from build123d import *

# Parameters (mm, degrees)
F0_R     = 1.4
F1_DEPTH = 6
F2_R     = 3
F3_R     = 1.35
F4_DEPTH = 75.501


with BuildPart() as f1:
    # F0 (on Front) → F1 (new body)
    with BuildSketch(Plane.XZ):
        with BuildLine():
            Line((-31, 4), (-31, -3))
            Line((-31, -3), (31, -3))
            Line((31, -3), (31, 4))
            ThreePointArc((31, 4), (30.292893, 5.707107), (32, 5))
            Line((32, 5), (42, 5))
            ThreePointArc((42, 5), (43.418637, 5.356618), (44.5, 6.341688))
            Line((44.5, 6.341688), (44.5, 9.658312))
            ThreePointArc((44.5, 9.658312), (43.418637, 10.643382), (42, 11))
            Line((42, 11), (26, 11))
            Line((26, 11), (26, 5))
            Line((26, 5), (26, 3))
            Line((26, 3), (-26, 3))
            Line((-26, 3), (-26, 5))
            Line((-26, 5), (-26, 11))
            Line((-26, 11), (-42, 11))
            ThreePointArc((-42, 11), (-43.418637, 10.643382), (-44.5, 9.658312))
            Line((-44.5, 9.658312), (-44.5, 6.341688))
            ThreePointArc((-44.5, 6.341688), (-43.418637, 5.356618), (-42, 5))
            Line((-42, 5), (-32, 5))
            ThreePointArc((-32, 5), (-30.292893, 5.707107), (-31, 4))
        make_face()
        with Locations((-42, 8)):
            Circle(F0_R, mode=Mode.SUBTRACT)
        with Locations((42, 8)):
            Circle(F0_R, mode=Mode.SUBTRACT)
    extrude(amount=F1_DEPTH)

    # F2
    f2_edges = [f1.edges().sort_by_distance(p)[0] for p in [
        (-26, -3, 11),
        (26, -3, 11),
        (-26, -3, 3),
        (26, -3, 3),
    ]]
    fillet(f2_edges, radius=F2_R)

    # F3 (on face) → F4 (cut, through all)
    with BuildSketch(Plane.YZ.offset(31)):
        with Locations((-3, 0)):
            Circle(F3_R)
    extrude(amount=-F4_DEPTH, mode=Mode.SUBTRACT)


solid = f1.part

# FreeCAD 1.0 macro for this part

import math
import FreeCAD as App
import Part
import Sketcher
Q = App.Units.Quantity


def edges_at(feature, points):
    """Names of the edges that pass closest to the given points."""
    edges = feature.Shape.Edges
    near = lambda p: min(range(len(edges)), key=lambda i: edges[i].distToShape(Part.Vertex(*p))[0])
    return sorted({f"Edge{near(p) + 1}" for p in points})

doc = App.newDocument("Part")
body = doc.addObject("PartDesign::Body", "Body")

sketch1 = body.newObject("Sketcher::SketchObject", "Sketch")
sketch1.AttachmentSupport = (doc.getObject("XZ_Plane"), [""])
sketch1.MapMode = "FlatFace"
sketch1.addGeometry(Part.LineSegment(App.Vector(-31, 4, 0), App.Vector(-31, -3, 0)), False)
sketch1.addGeometry(Part.LineSegment(App.Vector(-31, -3, 0), App.Vector(31, -3, 0)), False)
sketch1.addGeometry(Part.LineSegment(App.Vector(31, -3, 0), App.Vector(31, 4, 0)), False)
sketch1.addGeometry(Part.ArcOfCircle(Part.Circle(App.Vector(31, 5, 0), App.Vector(0, 0, 1), 1), math.radians(-0.000007), math.radians(270.000007)), False)
sketch1.addGeometry(Part.LineSegment(App.Vector(32, 5, 0), App.Vector(42, 5, 0)), False)
sketch1.addGeometry(Part.ArcOfCircle(Part.Circle(App.Vector(42, 8, 0), App.Vector(0, 0, 1), 3), math.radians(-89.999996), math.radians(-33.5573)), False)
sketch1.addGeometry(Part.LineSegment(App.Vector(44.5, 6.341688, 0), App.Vector(44.5, 9.658312, 0)), False)
sketch1.addGeometry(Part.ArcOfCircle(Part.Circle(App.Vector(42, 8, 0), App.Vector(0, 0, 1), 3), math.radians(33.5573), math.radians(89.999996)), False)
sketch1.addGeometry(Part.LineSegment(App.Vector(42, 11, 0), App.Vector(26, 11, 0)), False)
sketch1.addGeometry(Part.LineSegment(App.Vector(26, 11, 0), App.Vector(26, 3, 0)), False)
sketch1.addGeometry(Part.LineSegment(App.Vector(26, 3, 0), App.Vector(-26, 3, 0)), False)
sketch1.addGeometry(Part.LineSegment(App.Vector(-26, 3, 0), App.Vector(-26, 11, 0)), False)
sketch1.addGeometry(Part.LineSegment(App.Vector(-26, 11, 0), App.Vector(-42, 11, 0)), False)
sketch1.addGeometry(Part.ArcOfCircle(Part.Circle(App.Vector(-42, 8, 0), App.Vector(0, 0, 1), 3), math.radians(90.000004), math.radians(146.4427)), False)
sketch1.addGeometry(Part.LineSegment(App.Vector(-44.5, 9.658312, 0), App.Vector(-44.5, 6.341688, 0)), False)
sketch1.addGeometry(Part.ArcOfCircle(Part.Circle(App.Vector(-42, 8, 0), App.Vector(0, 0, 1), 3), math.radians(-146.4427), math.radians(-90.000004)), False)
sketch1.addGeometry(Part.LineSegment(App.Vector(-42, 5, 0), App.Vector(-32, 5, 0)), False)
sketch1.addGeometry(Part.ArcOfCircle(Part.Circle(App.Vector(-31, 5, 0), App.Vector(0, 0, 1), 1), math.radians(-90.000007), math.radians(180.000007)), False)
sketch1.addGeometry(Part.Circle(App.Vector(-42, 8, 0), App.Vector(0, 0, 1), 1.4), False)
sketch1.addGeometry(Part.Circle(App.Vector(42, 8, 0), App.Vector(0, 0, 1), 1.4), False)
sketch1.addConstraint(Sketcher.Constraint("Coincident", 0, 2, 1, 1))
sketch1.addConstraint(Sketcher.Constraint("Coincident", 1, 2, 2, 1))
sketch1.addConstraint(Sketcher.Constraint("Coincident", 2, 2, 3, 2))
sketch1.addConstraint(Sketcher.Constraint("Coincident", 3, 1, 4, 1))
sketch1.addConstraint(Sketcher.Constraint("Tangent", 4, 2, 5, 1))
sketch1.addConstraint(Sketcher.Constraint("Coincident", 5, 2, 6, 1))
sketch1.addConstraint(Sketcher.Constraint("Coincident", 6, 2, 7, 1))
sketch1.addConstraint(Sketcher.Constraint("Tangent", 7, 2, 8, 1))
sketch1.addConstraint(Sketcher.Constraint("Coincident", 8, 2, 9, 1))
sketch1.addConstraint(Sketcher.Constraint("Coincident", 9, 2, 10, 1))
sketch1.addConstraint(Sketcher.Constraint("Coincident", 10, 2, 11, 1))
sketch1.addConstraint(Sketcher.Constraint("Coincident", 11, 2, 12, 1))
sketch1.addConstraint(Sketcher.Constraint("Tangent", 12, 2, 13, 1))
sketch1.addConstraint(Sketcher.Constraint("Coincident", 13, 2, 14, 1))
sketch1.addConstraint(Sketcher.Constraint("Coincident", 14, 2, 15, 1))
sketch1.addConstraint(Sketcher.Constraint("Tangent", 15, 2, 16, 1))
sketch1.addConstraint(Sketcher.Constraint("Coincident", 16, 2, 17, 2))
sketch1.addConstraint(Sketcher.Constraint("Coincident", 17, 1, 0, 1))
sketch1.addConstraint(Sketcher.Constraint("Vertical", 0))
sketch1.addConstraint(Sketcher.Constraint("Horizontal", 1))
sketch1.addConstraint(Sketcher.Constraint("Vertical", 2))
sketch1.addConstraint(Sketcher.Constraint("Horizontal", 4))
sketch1.addConstraint(Sketcher.Constraint("Vertical", 6))
sketch1.addConstraint(Sketcher.Constraint("Horizontal", 8))
sketch1.addConstraint(Sketcher.Constraint("Vertical", 9))
sketch1.addConstraint(Sketcher.Constraint("Horizontal", 10))
sketch1.addConstraint(Sketcher.Constraint("Vertical", 11))
sketch1.addConstraint(Sketcher.Constraint("Horizontal", 12))
sketch1.addConstraint(Sketcher.Constraint("Vertical", 14))
sketch1.addConstraint(Sketcher.Constraint("Horizontal", 16))
sketch1.addConstraint(Sketcher.Constraint("Coincident", 7, 3, 5, 3))
sketch1.addConstraint(Sketcher.Constraint("Coincident", 15, 3, 13, 3))
sketch1.addConstraint(Sketcher.Constraint("Coincident", 18, 3, 13, 3))
sketch1.addConstraint(Sketcher.Constraint("Coincident", 19, 3, 5, 3))
sketch1.addConstraint(Sketcher.Constraint("Equal", 5, 7))
sketch1.addConstraint(Sketcher.Constraint("Equal", 7, 13))
sketch1.addConstraint(Sketcher.Constraint("Equal", 13, 15))
sketch1.addConstraint(Sketcher.Constraint("Equal", 3, 17))
sketch1.addConstraint(Sketcher.Constraint("Equal", 18, 19))
sketch1.addConstraint(Sketcher.Constraint("Symmetric", 5, 3, 13, 3, -2))
sketch1.addConstraint(Sketcher.Constraint("Symmetric", 3, 3, 17, 3, -2))
sketch1.addConstraint(Sketcher.Constraint("Horizontal", 17, 3, 3, 1))
sketch1.addConstraint(Sketcher.Constraint("Horizontal", 6, 2, 13, 2))
sketch1.addConstraint(Sketcher.Constraint("Vertical", 17, 3, 0, 2))
sketch1.addConstraint(Sketcher.Constraint("Vertical", 3, 3, 1, 2))
sketch1.addConstraint(Sketcher.Constraint("Equal", 8, 12))
sketch1.addConstraint(Sketcher.Constraint("Radius", 3, Q("1 mm")))
sketch1.addConstraint(Sketcher.Constraint("Radius", 5, Q("3 mm")))
sketch1.addConstraint(Sketcher.Constraint("Diameter", 18, Q("2.8 mm")))
sketch1.addConstraint(Sketcher.Constraint("DistanceX", 1, 1, 1, 2, Q("62 mm")))
sketch1.addConstraint(Sketcher.Constraint("DistanceX", 4, 1, 4, 2, Q("10 mm")))
sketch1.addConstraint(Sketcher.Constraint("DistanceX", 8, 2, 8, 1, Q("16 mm")))
sketch1.addConstraint(Sketcher.Constraint("DistanceY", 0, 2, 0, 1, Q("7 mm")))
sketch1.addConstraint(Sketcher.Constraint("DistanceY", 9, 2, 9, 1, Q("8 mm")))
sketch1.addConstraint(Sketcher.Constraint("DistanceY", -1, 1, 3, 3, Q("5 mm")))
sketch1.addConstraint(Sketcher.Constraint("DistanceX", -1, 1, 5, 2, Q("44.5 mm")))
pad1 = body.newObject("PartDesign::Pad", "Pad")
pad1.Profile = sketch1
pad1.Length = 6
doc.recompute()

fillet = body.newObject("PartDesign::Fillet", "Fillet")
fillet.Base = (pad1, edges_at(pad1, [
    (-26, -3, 11),
    (26, -3, 11),
    (-26, -3, 3),
    (26, -3, 3),
]))
fillet.Radius = 3

sketch2 = body.newObject("Sketcher::SketchObject", "Sketch001")
sketch2.AttachmentSupport = (doc.getObject("YZ_Plane"), [""])
sketch2.MapMode = "FlatFace"
sketch2.AttachmentOffset = App.Placement(App.Vector(0, 0, 31), App.Rotation())
sketch2.addGeometry(Part.Circle(App.Vector(-3, 0, 0), App.Vector(0, 0, 1), 1.35), False)
sketch2.addConstraint(Sketcher.Constraint("PointOnObject", 0, 3, -1))
sketch2.addConstraint(Sketcher.Constraint("Diameter", 0, Q("2.7 mm")))
sketch2.addConstraint(Sketcher.Constraint("DistanceX", 0, 3, -1, 1, Q("3 mm")))
pocket1 = body.newObject("PartDesign::Pocket", "Pocket")
pocket1.Profile = sketch2
pocket1.Type = "ThroughAll"

doc.recompute()
